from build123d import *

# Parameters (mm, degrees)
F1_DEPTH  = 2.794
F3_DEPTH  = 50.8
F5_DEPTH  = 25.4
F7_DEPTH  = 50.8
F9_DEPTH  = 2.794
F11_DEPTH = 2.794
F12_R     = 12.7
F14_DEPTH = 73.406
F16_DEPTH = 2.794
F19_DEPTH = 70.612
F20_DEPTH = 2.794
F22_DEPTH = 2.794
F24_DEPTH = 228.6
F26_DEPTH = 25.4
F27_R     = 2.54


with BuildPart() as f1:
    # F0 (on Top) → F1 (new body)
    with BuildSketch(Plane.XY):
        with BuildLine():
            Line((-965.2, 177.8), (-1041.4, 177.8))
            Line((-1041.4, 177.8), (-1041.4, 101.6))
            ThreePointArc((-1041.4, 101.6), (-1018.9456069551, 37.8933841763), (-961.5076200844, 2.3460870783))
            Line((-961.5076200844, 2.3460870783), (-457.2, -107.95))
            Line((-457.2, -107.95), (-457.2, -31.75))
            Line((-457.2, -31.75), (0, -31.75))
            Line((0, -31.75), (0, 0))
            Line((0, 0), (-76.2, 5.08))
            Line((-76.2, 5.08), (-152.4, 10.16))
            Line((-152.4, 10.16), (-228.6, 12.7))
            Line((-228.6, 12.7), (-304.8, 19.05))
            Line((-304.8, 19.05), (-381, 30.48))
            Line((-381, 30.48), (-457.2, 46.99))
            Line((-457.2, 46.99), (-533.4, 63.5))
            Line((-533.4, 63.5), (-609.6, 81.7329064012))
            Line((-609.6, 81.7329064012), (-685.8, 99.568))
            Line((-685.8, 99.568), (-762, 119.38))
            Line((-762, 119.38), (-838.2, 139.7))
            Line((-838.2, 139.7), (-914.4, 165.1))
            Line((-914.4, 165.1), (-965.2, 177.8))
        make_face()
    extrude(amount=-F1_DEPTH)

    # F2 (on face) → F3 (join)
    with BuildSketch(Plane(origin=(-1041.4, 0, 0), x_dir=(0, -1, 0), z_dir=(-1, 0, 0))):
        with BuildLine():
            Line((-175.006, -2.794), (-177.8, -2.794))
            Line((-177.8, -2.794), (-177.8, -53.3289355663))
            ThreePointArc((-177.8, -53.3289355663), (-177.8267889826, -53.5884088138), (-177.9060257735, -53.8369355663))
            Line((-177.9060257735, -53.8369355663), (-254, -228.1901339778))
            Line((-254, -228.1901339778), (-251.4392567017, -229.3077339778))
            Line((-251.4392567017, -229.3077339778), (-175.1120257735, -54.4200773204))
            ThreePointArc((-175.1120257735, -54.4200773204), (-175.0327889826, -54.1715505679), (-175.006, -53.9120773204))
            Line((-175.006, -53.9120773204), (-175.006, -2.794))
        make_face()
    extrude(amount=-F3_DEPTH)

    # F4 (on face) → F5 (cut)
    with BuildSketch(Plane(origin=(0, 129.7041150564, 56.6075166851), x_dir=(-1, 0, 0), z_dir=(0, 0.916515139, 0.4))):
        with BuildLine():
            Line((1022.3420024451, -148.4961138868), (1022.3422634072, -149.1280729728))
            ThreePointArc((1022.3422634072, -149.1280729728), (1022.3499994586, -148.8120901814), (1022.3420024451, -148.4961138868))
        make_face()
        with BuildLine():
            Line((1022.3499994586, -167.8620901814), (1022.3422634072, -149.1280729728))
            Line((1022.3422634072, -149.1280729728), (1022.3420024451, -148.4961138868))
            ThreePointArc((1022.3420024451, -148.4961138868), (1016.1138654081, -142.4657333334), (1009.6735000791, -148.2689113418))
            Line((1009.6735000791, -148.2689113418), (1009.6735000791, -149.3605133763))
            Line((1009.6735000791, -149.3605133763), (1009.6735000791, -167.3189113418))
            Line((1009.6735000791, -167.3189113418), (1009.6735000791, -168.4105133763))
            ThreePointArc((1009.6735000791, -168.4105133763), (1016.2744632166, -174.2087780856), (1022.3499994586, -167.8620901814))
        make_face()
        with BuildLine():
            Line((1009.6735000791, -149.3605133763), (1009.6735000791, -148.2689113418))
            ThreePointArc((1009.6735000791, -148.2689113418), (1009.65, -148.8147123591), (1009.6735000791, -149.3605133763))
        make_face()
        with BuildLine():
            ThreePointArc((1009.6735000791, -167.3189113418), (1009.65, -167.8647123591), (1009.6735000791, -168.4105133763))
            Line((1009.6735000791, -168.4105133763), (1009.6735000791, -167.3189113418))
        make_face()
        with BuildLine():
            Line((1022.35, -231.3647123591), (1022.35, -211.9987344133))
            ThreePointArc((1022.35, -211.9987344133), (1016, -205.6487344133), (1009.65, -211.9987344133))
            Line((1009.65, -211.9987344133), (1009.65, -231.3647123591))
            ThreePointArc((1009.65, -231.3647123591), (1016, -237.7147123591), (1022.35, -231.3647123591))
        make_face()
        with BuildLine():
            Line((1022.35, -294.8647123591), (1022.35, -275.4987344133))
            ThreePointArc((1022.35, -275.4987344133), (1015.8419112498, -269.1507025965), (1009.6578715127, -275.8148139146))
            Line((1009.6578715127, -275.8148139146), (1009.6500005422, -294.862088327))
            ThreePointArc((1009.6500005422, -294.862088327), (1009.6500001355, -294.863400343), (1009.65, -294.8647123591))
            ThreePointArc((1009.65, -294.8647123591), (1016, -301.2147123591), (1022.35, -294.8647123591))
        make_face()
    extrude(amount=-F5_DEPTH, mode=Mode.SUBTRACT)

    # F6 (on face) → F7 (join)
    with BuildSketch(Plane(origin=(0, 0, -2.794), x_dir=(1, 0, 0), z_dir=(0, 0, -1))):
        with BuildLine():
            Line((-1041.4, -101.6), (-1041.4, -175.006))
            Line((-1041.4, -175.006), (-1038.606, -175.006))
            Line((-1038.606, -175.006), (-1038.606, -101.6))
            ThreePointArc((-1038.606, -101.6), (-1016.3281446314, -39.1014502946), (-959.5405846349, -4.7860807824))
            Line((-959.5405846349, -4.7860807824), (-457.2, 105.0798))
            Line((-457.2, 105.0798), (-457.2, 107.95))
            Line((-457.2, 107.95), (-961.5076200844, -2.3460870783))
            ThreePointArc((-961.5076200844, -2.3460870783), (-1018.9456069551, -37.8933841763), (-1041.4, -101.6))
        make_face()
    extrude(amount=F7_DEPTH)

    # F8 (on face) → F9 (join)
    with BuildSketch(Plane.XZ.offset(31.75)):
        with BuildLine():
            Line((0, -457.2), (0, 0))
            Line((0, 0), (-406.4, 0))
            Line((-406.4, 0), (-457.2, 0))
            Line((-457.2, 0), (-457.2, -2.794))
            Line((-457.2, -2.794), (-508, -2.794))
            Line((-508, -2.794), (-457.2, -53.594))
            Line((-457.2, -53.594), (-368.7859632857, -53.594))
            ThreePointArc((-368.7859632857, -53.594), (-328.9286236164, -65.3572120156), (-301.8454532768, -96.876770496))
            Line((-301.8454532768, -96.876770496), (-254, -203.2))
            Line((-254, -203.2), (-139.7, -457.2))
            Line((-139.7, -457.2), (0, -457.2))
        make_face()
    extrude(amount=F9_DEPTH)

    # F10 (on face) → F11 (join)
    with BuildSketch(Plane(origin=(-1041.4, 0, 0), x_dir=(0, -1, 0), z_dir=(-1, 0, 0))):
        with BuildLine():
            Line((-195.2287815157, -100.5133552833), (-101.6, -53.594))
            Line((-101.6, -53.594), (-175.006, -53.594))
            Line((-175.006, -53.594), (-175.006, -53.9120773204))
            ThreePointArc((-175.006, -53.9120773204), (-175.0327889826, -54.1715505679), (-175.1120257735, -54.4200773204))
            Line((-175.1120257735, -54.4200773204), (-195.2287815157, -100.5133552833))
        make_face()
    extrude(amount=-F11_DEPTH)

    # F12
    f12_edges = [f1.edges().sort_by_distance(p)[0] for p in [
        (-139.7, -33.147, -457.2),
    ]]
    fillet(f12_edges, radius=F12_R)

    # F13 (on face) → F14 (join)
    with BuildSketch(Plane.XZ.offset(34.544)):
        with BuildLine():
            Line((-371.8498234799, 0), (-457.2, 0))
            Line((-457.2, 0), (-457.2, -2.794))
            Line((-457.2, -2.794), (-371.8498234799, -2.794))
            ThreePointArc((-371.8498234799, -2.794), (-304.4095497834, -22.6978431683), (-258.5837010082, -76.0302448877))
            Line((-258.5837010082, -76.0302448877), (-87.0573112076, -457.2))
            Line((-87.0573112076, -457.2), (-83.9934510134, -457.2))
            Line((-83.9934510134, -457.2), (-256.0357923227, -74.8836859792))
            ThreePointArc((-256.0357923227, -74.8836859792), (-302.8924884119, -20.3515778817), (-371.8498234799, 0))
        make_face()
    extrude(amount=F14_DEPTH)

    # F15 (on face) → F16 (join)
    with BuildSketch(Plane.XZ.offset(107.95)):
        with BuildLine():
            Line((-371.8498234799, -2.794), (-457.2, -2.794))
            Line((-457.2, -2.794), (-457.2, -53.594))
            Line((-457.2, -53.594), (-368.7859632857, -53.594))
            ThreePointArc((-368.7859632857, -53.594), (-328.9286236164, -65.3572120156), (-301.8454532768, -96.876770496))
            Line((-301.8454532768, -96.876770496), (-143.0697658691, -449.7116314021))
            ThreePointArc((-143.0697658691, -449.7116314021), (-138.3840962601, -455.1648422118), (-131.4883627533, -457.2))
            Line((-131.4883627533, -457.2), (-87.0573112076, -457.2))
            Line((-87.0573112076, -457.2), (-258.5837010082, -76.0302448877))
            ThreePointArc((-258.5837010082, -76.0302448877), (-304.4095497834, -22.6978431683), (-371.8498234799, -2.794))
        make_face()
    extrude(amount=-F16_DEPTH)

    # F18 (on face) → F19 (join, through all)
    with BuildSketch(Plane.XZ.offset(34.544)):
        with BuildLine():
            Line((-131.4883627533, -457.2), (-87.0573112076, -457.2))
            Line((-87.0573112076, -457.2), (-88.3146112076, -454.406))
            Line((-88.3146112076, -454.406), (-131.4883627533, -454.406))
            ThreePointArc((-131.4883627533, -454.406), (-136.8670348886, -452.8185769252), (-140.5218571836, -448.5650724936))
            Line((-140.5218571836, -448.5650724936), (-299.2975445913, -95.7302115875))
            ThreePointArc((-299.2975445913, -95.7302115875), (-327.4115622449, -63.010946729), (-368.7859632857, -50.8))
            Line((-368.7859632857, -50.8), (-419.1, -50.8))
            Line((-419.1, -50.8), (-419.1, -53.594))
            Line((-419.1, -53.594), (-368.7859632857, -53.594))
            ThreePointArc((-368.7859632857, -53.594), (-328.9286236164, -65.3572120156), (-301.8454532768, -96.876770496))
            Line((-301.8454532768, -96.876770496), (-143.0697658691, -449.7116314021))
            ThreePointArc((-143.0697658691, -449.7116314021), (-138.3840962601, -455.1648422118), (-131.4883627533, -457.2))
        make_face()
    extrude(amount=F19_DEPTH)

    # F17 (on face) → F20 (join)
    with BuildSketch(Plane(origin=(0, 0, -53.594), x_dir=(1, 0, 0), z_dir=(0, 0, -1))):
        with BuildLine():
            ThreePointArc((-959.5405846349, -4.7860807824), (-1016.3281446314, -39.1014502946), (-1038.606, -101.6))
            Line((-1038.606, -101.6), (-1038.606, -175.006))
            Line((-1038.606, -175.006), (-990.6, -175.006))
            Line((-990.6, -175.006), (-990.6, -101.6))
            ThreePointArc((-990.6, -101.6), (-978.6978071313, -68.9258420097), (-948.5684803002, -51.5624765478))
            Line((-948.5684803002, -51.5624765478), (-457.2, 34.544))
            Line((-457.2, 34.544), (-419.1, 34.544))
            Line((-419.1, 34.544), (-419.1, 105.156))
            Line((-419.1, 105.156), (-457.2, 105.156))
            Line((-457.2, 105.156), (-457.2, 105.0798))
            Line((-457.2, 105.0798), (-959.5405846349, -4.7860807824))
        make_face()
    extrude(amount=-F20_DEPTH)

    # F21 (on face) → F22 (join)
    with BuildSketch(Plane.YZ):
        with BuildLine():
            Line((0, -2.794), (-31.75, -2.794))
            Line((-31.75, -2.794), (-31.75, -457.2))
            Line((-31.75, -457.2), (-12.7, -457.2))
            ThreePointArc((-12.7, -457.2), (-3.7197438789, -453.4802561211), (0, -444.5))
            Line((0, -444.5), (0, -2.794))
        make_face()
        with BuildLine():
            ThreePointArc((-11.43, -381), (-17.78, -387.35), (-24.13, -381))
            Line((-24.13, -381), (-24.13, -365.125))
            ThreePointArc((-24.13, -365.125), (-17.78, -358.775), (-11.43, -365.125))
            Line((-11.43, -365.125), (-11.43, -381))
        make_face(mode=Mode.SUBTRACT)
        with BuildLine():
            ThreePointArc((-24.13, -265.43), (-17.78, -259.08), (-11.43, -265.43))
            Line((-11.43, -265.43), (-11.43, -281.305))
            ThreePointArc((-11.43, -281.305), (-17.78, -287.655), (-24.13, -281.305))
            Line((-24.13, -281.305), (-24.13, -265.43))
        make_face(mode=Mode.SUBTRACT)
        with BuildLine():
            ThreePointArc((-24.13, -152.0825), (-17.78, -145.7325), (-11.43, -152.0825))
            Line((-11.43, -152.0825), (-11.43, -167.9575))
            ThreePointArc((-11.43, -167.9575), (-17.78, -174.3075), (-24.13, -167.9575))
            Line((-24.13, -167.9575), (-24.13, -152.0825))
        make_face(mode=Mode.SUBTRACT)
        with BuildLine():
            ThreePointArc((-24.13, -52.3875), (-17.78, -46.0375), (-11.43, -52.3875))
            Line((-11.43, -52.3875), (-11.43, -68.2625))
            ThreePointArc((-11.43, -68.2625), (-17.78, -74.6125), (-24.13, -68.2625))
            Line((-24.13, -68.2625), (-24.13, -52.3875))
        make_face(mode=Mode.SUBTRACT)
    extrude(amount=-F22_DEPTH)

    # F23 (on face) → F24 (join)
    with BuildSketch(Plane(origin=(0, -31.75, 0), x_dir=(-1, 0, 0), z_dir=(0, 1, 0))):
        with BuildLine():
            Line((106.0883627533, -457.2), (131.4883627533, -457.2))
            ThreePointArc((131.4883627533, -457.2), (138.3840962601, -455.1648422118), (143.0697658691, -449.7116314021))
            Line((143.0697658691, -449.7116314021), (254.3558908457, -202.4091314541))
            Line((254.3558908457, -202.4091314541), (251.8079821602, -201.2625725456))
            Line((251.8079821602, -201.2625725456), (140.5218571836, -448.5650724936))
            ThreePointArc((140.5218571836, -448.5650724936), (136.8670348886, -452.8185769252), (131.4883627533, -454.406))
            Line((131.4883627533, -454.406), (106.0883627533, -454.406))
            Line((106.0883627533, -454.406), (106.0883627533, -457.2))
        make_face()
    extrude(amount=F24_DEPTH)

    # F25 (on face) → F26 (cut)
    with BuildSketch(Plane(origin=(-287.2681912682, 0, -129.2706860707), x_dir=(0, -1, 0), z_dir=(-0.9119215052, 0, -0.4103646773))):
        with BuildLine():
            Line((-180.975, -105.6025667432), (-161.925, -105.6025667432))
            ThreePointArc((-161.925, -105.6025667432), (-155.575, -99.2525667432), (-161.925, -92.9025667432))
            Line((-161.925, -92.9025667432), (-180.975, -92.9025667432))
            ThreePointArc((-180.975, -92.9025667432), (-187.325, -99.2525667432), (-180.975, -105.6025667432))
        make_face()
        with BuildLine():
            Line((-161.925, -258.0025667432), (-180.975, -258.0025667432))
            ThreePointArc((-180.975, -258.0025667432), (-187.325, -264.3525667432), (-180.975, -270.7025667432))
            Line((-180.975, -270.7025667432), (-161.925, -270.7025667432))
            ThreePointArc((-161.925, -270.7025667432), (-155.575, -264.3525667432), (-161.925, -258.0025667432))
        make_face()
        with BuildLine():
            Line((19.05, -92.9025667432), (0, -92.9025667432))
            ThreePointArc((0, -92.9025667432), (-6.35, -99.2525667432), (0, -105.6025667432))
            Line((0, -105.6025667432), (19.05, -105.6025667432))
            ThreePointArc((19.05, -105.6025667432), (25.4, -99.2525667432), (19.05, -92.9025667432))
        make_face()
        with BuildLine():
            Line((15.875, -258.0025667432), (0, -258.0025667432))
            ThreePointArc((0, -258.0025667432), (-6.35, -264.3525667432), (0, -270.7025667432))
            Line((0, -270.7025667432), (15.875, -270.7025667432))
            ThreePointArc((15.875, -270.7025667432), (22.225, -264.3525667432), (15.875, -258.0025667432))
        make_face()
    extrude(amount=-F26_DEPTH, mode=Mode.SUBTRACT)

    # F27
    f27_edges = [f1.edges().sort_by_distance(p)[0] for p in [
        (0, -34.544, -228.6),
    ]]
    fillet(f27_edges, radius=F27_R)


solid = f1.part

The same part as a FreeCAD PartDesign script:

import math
import FreeCAD as App
import Part
import Sketcher

V = App.Vector
Q = App.Units.Quantity


def edges_at(feature, points):
    """Names of the edges that pass closest to the given points."""
    edges = feature.Shape.Edges
    near = lambda p: min(range(len(edges)), key=lambda i: edges[i].distToShape(Part.Vertex(*p))[0])
    return sorted({f"Edge{near(p) + 1}" for p in points})

doc = App.newDocument("Part")
body = doc.addObject("PartDesign::Body", "Body")

# Sketch on XY plane
sketch1 = doc.addObject("Sketcher::SketchObject", "Sketch")
body.addObject(sketch1)
sketch1.AttachmentSupport = (doc.XY_Plane, [""])
sketch1.MapMode = "FlatFace"
sketch1.addGeometry([
    Part.LineSegment(V(-965.2, 177.8, 0), V(-1041.4, 177.8, 0)),  # 0
    Part.LineSegment(V(-1041.4, 177.8, 0), V(-1041.4, 101.6, 0)),  # 1
    Part.ArcOfCircle(Part.Circle(V(-939.8, 101.6, 0), V(0, 0, 1), 101.6), math.radians(180), math.radians(257.663212)),  # 2
    Part.LineSegment(V(-961.50762, 2.346087, 0), V(-457.2, -107.95, 0)),  # 3
    Part.LineSegment(V(-457.2, -107.95, 0), V(-457.2, -31.75, 0)),  # 4
    Part.LineSegment(V(-457.2, -31.75, 0), V(0, -31.75, 0)),  # 5
    Part.LineSegment(V(0, -31.75, 0), V(0, 0, 0)),  # 6
    Part.LineSegment(V(0, 0, 0), V(-152.4, 10.16, 0)),  # 7
    Part.LineSegment(V(-152.4, 10.16, 0), V(-228.6, 12.7, 0)),  # 8
    Part.LineSegment(V(-228.6, 12.7, 0), V(-304.8, 19.05, 0)),  # 9
    Part.LineSegment(V(-304.8, 19.05, 0), V(-381, 30.48, 0)),  # 10
    Part.LineSegment(V(-381, 30.48, 0), V(-533.4, 63.5, 0)),  # 11
    Part.LineSegment(V(-533.4, 63.5, 0), V(-609.6, 81.732906, 0)),  # 12
    Part.LineSegment(V(-609.6, 81.732906, 0), V(-685.8, 99.568, 0)),  # 13
    Part.LineSegment(V(-685.8, 99.568, 0), V(-762, 119.38, 0)),  # 14
    Part.LineSegment(V(-762, 119.38, 0), V(-838.2, 139.7, 0)),  # 15
    Part.LineSegment(V(-838.2, 139.7, 0), V(-914.4, 165.1, 0)),  # 16
    Part.LineSegment(V(-914.4, 165.1, 0), V(-965.2, 177.8, 0)),  # 17
], False)
sketch1.addConstraint([
    Sketcher.Constraint("Coincident", 0, 2, 1, 1),
    Sketcher.Constraint("Tangent", 1, 2, 2, 1),
    Sketcher.Constraint("Tangent", 2, 2, 3, 1),
    Sketcher.Constraint("Coincident", 3, 2, 4, 1),
    Sketcher.Constraint("Coincident", 4, 2, 5, 1),
    Sketcher.Constraint("Coincident", 5, 2, 6, 1),
    Sketcher.Constraint("Coincident", 6, 2, 7, 1),
    Sketcher.Constraint("Coincident", 7, 2, 8, 1),
    Sketcher.Constraint("Coincident", 8, 2, 9, 1),
    Sketcher.Constraint("Coincident", 9, 2, 10, 1),
    Sketcher.Constraint("Coincident", 10, 2, 11, 1),
    Sketcher.Constraint("Coincident", 11, 2, 12, 1),
    Sketcher.Constraint("Coincident", 12, 2, 13, 1),
    Sketcher.Constraint("Coincident", 13, 2, 14, 1),
    Sketcher.Constraint("Coincident", 14, 2, 15, 1),
    Sketcher.Constraint("Coincident", 15, 2, 16, 1),
    Sketcher.Constraint("Coincident", 16, 2, 17, 1),
    Sketcher.Constraint("Coincident", 17, 2, 0, 1),
    Sketcher.Constraint("Horizontal", 0),
    Sketcher.Constraint("Vertical", 1),
    Sketcher.Constraint("Vertical", 4),
    Sketcher.Constraint("Horizontal", 5),
    Sketcher.Constraint("Vertical", 6),
    Sketcher.Constraint("Coincident", 6, 2, -1, 1),
    Sketcher.Constraint("Equal", 0, 1),
    Sketcher.Constraint("Equal", 1, 4),
    Sketcher.Constraint("Radius", 2, Q("4 in")),
    Sketcher.Constraint("DistanceX", 0, 2, 0, 1, Q("3 in")),
    Sketcher.Constraint("DistanceX", 5, 1, 5, 2, Q("18 in")),
    Sketcher.Constraint("DistanceX", 2, 3, -1, 1, Q("37 in")),
    Sketcher.Constraint("DistanceY", -1, 1, 2, 3, Q("4 in")),
    Sketcher.Constraint("DistanceX", 7, 2, -1, 1, Q("6 in")),
    Sketcher.Constraint("DistanceX", 8, 2, -1, 1, Q("9 in")),
    Sketcher.Constraint("DistanceX", 9, 2, -1, 1, Q("12 in")),
    Sketcher.Constraint("DistanceX", 10, 2, -1, 1, Q("15 in")),
    Sketcher.Constraint("DistanceX", 11, 2, -1, 1, Q("21 in")),
    Sketcher.Constraint("DistanceX", 12, 2, -1, 1, Q("24 in")),
    Sketcher.Constraint("DistanceX", 13, 2, -1, 1, Q("27 in")),
    Sketcher.Constraint("DistanceX", 14, 2, -1, 1, Q("30 in")),
    Sketcher.Constraint("DistanceX", 15, 2, -1, 1, Q("33 in")),
    Sketcher.Constraint("DistanceX", 16, 2, -1, 1, Q("36 in")),
    Sketcher.Constraint("DistanceY", 4, 2, 9, 2, Q("2 in")),
    Sketcher.Constraint("DistanceY", 8, 2, 11, 2, Q("2 in")),
    Sketcher.Constraint("DistanceY", 15, 2, 16, 2, Q("1 in")),
    Sketcher.Constraint("DistanceY", 6, 1, 6, 2, Q("1.25 in")),
    Sketcher.Constraint("DistanceY", -1, 1, 7, 2, Q("0.4 in")),
    Sketcher.Constraint("DistanceY", -1, 1, 8, 2, Q("0.5 in")),
    Sketcher.Constraint("DistanceY", -1, 1, 10, 2, Q("1.2 in")),
    Sketcher.Constraint("DistanceY", -1, 1, 14, 2, Q("4.7 in")),
    Sketcher.Constraint("DistanceY", -1, 1, 15, 2, Q("5.5 in")),
    Sketcher.Constraint("DistanceY", -1, 1, 13, 2, Q("3.92 in")),
    Sketcher.Constraint("Distance", 13, Q("78.25938 mm")),
])
pad1 = doc.addObject("PartDesign::Pad", "Pad")
body.addObject(pad1)
pad1.Profile = sketch1
pad1.Length = Q("0.11 in")
pad1.Reversed = True

# Sketch on YZ plane
sketch2 = doc.addObject("Sketcher::SketchObject", "Sketch001")
body.addObject(sketch2)
sketch2.AttachmentSupport = (doc.YZ_Plane, [""])
sketch2.MapMode = "FlatFace"
sketch2.AttachmentOffset = App.Placement(V(0, 0, -41 * 25.4), App.Rotation())
sketch2.addGeometry([
    Part.LineSegment(V(175.006, -2.794, 0), V(177.8, -2.794, 0)),  # 0
    Part.LineSegment(V(177.8, -2.794, 0), V(177.8, -53.328936, 0)),  # 1
    Part.ArcOfCircle(Part.Circle(V(179.07, -53.328936, 0), V(0, 0, 1), 1.27), math.radians(180), math.radians(203.578178)),  # 2
    Part.LineSegment(V(177.906026, -53.836936, 0), V(254, -228.190134, 0)),  # 3
    Part.LineSegment(V(254, -228.190134, 0), V(251.439257, -229.307734, 0)),  # 4
    Part.LineSegment(V(251.439257, -229.307734, 0), V(175.112026, -54.420077, 0)),  # 5
    Part.ArcOfCircle(Part.Circle(V(176.276, -53.912077, 0), V(0, 0, 1), 1.27), math.radians(180), math.radians(203.578178)),  # 6
    Part.LineSegment(V(175.006, -53.912077, 0), V(175.006, -2.794, 0)),  # 7
], False)
sketch2.addConstraint([
    Sketcher.Constraint("Coincident", 0, 2, 1, 1),
    Sketcher.Constraint("Tangent", 1, 2, 2, 1),
    Sketcher.Constraint("Tangent", 2, 2, 3, 1),
    Sketcher.Constraint("Coincident", 3, 2, 4, 1),
    Sketcher.Constraint("Coincident", 4, 2, 5, 1),
    Sketcher.Constraint("Tangent", 5, 2, 6, 2),
    Sketcher.Constraint("Tangent", 6, 1, 7, 1),
    Sketcher.Constraint("Coincident", 7, 2, 0, 1),
    Sketcher.Constraint("Horizontal", 0),
    Sketcher.Constraint("Vertical", 1),
    Sketcher.Constraint("Vertical", 7),
    Sketcher.Constraint("Equal", 2, 6),
    Sketcher.Constraint("Perpendicular", 3, 4),
    Sketcher.Constraint("Perpendicular", 4, 5),
    Sketcher.Constraint("Radius", 2, Q("0.05 in")),
    Sketcher.Constraint("DistanceX", -1, 1, 0, 2, Q("7 in")),
    Sketcher.Constraint("DistanceX", -1, 1, 3, 2, Q("10 in")),
    Sketcher.Constraint("DistanceX", 0, 1, 0, 2, Q("0.11 in")),
    Sketcher.Constraint("Distance", 4, Q("0.11 in")),
    Sketcher.Constraint("DistanceY", 0, 2, -1, 1, Q("0.11 in")),
    Sketcher.Constraint("DistanceY", 4, 2, 3, 2, Q("0.044 in")),
    Sketcher.Constraint("DistanceY", 1, 2, 1, 1, Q("50.534936 mm")),
])
pad2 = doc.addObject("PartDesign::Pad", "Pad001")
body.addObject(pad2)
pad2.Profile = sketch2
pad2.Length = Q("2 in")

# Sketch on an angled plane
sketch3 = doc.addObject("Sketcher::SketchObject", "Sketch002")
body.addObject(sketch3)
sketch3.Placement = App.Placement(V(0, 129.704115, 56.607517), App.Rotation(V(-1, 0, 0), V(0, -0.4, 0.916515139), V(0, 0.916515139, 0.4), "ZXY"))
sketch3.addGeometry([
    Part.ArcOfCircle(Part.Circle(V(1016, -148.814712, 0), V(0, 0, 1), 6.35), math.radians(-2.828588), math.radians(2.875908)),  # 0
    Part.ArcOfCircle(Part.Circle(V(1016, -148.814712, 0), V(0, 0, 1), 6.35), math.radians(2.875908), math.radians(175.069177)),  # 1
    Part.ArcOfCircle(Part.Circle(V(1016, -148.814712, 0), V(0, 0, 1), 6.35), math.radians(175.069177), math.radians(184.930823)),  # 2
    Part.LineSegment(V(1009.6735, -149.360513, 0), V(1009.6735, -167.318911, 0)),  # 3
    Part.ArcOfCircle(Part.Circle(V(1016, -167.864712, 0), V(0, 0, 1), 6.35), math.radians(175.069177), math.radians(184.930823)),  # 4
    Part.ArcOfCircle(Part.Circle(V(1016, -167.864712, 0), V(0, 0, 1), 6.35), math.radians(-175.069177), math.radians(0.02366)),  # 5
    Part.LineSegment(V(1022.349999, -167.86209, 0), V(1022.342263, -149.128073, 0)),  # 6
    Part.LineSegment(V(1022.35, -231.364712, 0), V(1022.35, -211.998734, 0)),  # 7
    Part.ArcOfCircle(Part.Circle(V(1016, -211.998734, 0), V(0, 0, 1), 6.35), math.radians(0), math.radians(180)),  # 8
    Part.LineSegment(V(1009.65, -211.998734, 0), V(1009.65, -231.364712, 0)),  # 9
    Part.ArcOfCircle(Part.Circle(V(1016, -231.364712, 0), V(0, 0, 1), 6.35), math.radians(180), math.radians(360)),  # 10
    Part.LineSegment(V(1022.35, -294.864712, 0), V(1022.35, -275.498734, 0)),  # 11
    Part.ArcOfCircle(Part.Circle(V(1016, -275.498734, 0), V(0, 0, 1), 6.35), math.radians(0), math.radians(182.853151)),  # 12
    Part.LineSegment(V(1009.657872, -275.814814, 0), V(1009.650001, -294.862088, 0)),  # 13
    Part.ArcOfCircle(Part.Circle(V(1015.997295, -294.864712, 0), V(0, 0, 1), 6.347295), math.radians(179.976318), math.radians(180.000004)),  # 14
    Part.ArcOfCircle(Part.Circle(V(1016, -294.864712, 0), V(0, 0, 1), 6.35), math.radians(180), math.radians(360)),  # 15
], False)
sketch3.addConstraint([
    Sketcher.Constraint("Tangent", 0, 2, 1, 1),
    Sketcher.Constraint("Tangent", 1, 2, 2, 1),
    Sketcher.Constraint("Coincident", 2, 2, 3, 1),
    Sketcher.Constraint("Coincident", 3, 2, 4, 1),
    Sketcher.Constraint("Tangent", 4, 2, 5, 1),
    Sketcher.Constraint("Tangent", 5, 2, 6, 1),
    Sketcher.Constraint("Coincident", 6, 2, 0, 1),
    Sketcher.Constraint("Tangent", 7, 2, 8, 1),
    Sketcher.Constraint("Tangent", 8, 2, 9, 1),
    Sketcher.Constraint("Tangent", 9, 2, 10, 1),
    Sketcher.Constraint("Tangent", 10, 2, 7, 1),
    Sketcher.Constraint("Tangent", 11, 2, 12, 1),
    Sketcher.Constraint("Coincident", 12, 2, 13, 1),
    Sketcher.Constraint("Tangent", 13, 2, 14, 1),
    Sketcher.Constraint("Tangent", 14, 2, 15, 1),
    Sketcher.Constraint("Tangent", 15, 2, 11, 1),
    Sketcher.Constraint("Vertical", 3),
    Sketcher.Constraint("Vertical", 7),
    Sketcher.Constraint("Vertical", 9),
    Sketcher.Constraint("Vertical", 11),
    Sketcher.Constraint("Coincident", 2, 3, 0, 3),
    Sketcher.Constraint("Equal", 2, 4),
    Sketcher.Constraint("Equal", 4, 5),
    Sketcher.Constraint("Equal", 5, 8),
    Sketcher.Constraint("Equal", 10, 12),
    Sketcher.Constraint("Equal", 12, 15),
    Sketcher.Constraint("Horizontal", 15, 3, 14, 2),
    Sketcher.Constraint("Vertical", 2, 3, 4, 3),
    Sketcher.Constraint("Vertical", 5, 3, 8, 3),
    Sketcher.Constraint("Vertical", 10, 3, 12, 3),
    Sketcher.Constraint("Vertical", 1, 2, 2, 2),
    Sketcher.Constraint("Vertical", 3, 2, 4, 2),
    Sketcher.Constraint("Equal", 9, 11),
    Sketcher.Constraint("Radius", 0, Q("0.25 in")),
    Sketcher.Constraint("DistanceX", -1, 1, 0, 3, Q("40 in")),
    Sketcher.Constraint("DistanceY", 14, 3, 4, 3, Q("5 in")),
    Sketcher.Constraint("DistanceY", 10, 3, 4, 3, Q("2.5 in")),
    Sketcher.Constraint("DistanceY", 4, 3, 0, 3, Q("0.75 in")),
    Sketcher.Constraint("Radius", 14, Q("6.347295 mm")),
    Sketcher.Constraint("DistanceX", -1, 1, 1, 2, Q("1009.6735 mm")),
    Sketcher.Constraint("DistanceY", 1, 3, 0, 2, Q("0.318598 mm")),
    Sketcher.Constraint("DistanceY", 15, 3, 12, 2, Q("19.049898 mm")),
    Sketcher.Constraint("Distance", 6, Q("18.734019 mm")),
    Sketcher.Constraint("DistanceY", 7, 1, 7, 2, Q("19.365978 mm")),
    Sketcher.Constraint("DistanceY", 14, 3, -1, 1, Q("294.864712 mm")),
])
pocket1 = doc.addObject("PartDesign::Pocket", "Pocket")
body.addObject(pocket1)
pocket1.Profile = sketch3
pocket1.Length = Q("1 in")

# Sketch on XY plane
sketch4 = doc.addObject("Sketcher::SketchObject", "Sketch003")
body.addObject(sketch4)
sketch4.AttachmentSupport = (doc.XY_Plane, [""])
sketch4.MapMode = "FlatFace"
sketch4.AttachmentOffset = App.Placement(V(0, 0, -0.11 * 25.4), App.Rotation())
sketch4.addGeometry([
    Part.LineSegment(V(-1041.4, 101.6, 0), V(-1041.4, 175.006, 0)),  # 0
    Part.LineSegment(V(-1041.4, 175.006, 0), V(-1038.606, 175.006, 0)),  # 1
    Part.LineSegment(V(-1038.606, 175.006, 0), V(-1038.606, 101.6, 0)),  # 2
    Part.ArcOfCircle(Part.Circle(V(-939.8, 101.6, 0), V(0, 0, 1), 98.806), math.radians(180), math.radians(258.475242)),  # 3
    Part.LineSegment(V(-959.540585, 4.786081, 0), V(-457.2, -105.0798, 0)),  # 4
    Part.LineSegment(V(-457.2, -105.0798, 0), V(-457.2, -107.95, 0)),  # 5
    Part.LineSegment(V(-457.2, -107.95, 0), V(-961.50762, 2.346087, 0)),  # 6
    Part.ArcOfCircle(Part.Circle(V(-939.8, 101.6, 0), V(0, 0, 1), 101.6), math.radians(180), math.radians(257.663212)),  # 7
], False)
sketch4.addConstraint([
    Sketcher.Constraint("Coincident", 0, 2, 1, 1),
    Sketcher.Constraint("Coincident", 1, 2, 2, 1),
    Sketcher.Constraint("Tangent", 2, 2, 3, 1),
    Sketcher.Constraint("Coincident", 3, 2, 4, 1),
    Sketcher.Constraint("Coincident", 4, 2, 5, 1),
    Sketcher.Constraint("Coincident", 5, 2, 6, 1),
    Sketcher.Constraint("Tangent", 6, 2, 7, 2),
    Sketcher.Constraint("Tangent", 7, 1, 0, 1),
    Sketcher.Constraint("Vertical", 0),
    Sketcher.Constraint("Horizontal", 1),
    Sketcher.Constraint("Vertical", 2),
    Sketcher.Constraint("Vertical", 5),
    Sketcher.Constraint("Coincident", 7, 3, 3, 3),
    Sketcher.Constraint("Parallel", 4, 6),
    Sketcher.Constraint("Radius", 7, Q("4 in")),
    Sketcher.Constraint("Radius", 3, Q("3.89 in")),
    Sketcher.Constraint("DistanceX", 3, 3, -1, 1, Q("37 in")),
    Sketcher.Constraint("DistanceY", -1, 1, 3, 3, Q("4 in")),
    Sketcher.Constraint("DistanceX", 4, 2, -1, 1, Q("18 in")),
    Sketcher.Constraint("DistanceY", 0, 1, 0, 2, Q("2.89 in")),
    Sketcher.Constraint("DistanceY", 5, 2, 5, 1, Q("0.113 in")),
    Sketcher.Constraint("DistanceY", 5, 2, -1, 1, Q("4.25 in")),
])
pad3 = doc.addObject("PartDesign::Pad", "Pad002")
body.addObject(pad3)
pad3.Profile = sketch4
pad3.Length = Q("2 in")
pad3.Reversed = True

# Sketch on XZ plane
sketch5 = doc.addObject("Sketcher::SketchObject", "Sketch004")
body.addObject(sketch5)
sketch5.AttachmentSupport = (doc.XZ_Plane, [""])
sketch5.MapMode = "FlatFace"
sketch5.AttachmentOffset = App.Placement(V(0, 0, 1.25 * 25.4), App.Rotation())
sketch5.addGeometry([
    Part.LineSegment(V(0, -457.2, 0), V(0, 0, 0)),  # 0
    Part.LineSegment(V(0, 0, 0), V(-457.2, 0, 0)),  # 1
    Part.LineSegment(V(-457.2, 0, 0), V(-457.2, -2.794, 0)),  # 2
    Part.LineSegment(V(-457.2, -2.794, 0), V(-508, -2.794, 0)),  # 3
    Part.LineSegment(V(-508, -2.794, 0), V(-457.2, -53.594, 0)),  # 4
    Part.LineSegment(V(-457.2, -53.594, 0), V(-368.785963, -53.594, 0)),  # 5
    Part.ArcOfCircle(Part.Circle(V(-368.785963, -127, 0), V(0, 0, 1), 73.406), math.radians(24.227745), math.radians(90)),  # 6
    Part.LineSegment(V(-301.845453, -96.87677, 0), V(-139.7, -457.2, 0)),  # 7
    Part.LineSegment(V(-139.7, -457.2, 0), V(0, -457.2, 0)),  # 8
], False)
sketch5.addConstraint([
    Sketcher.Constraint("Coincident", 0, 2, 1, 1),
    Sketcher.Constraint("Coincident", 1, 2, 2, 1),
    Sketcher.Constraint("Coincident", 2, 2, 3, 1),
    Sketcher.Constraint("Coincident", 3, 2, 4, 1),
    Sketcher.Constraint("Coincident", 4, 2, 5, 1),
    Sketcher.Constraint("Tangent", 5, 2, 6, 2),
    Sketcher.Constraint("Tangent", 6, 1, 7, 1),
    Sketcher.Constraint("Coincident", 7, 2, 8, 1),
    Sketcher.Constraint("Coincident", 8, 2, 0, 1),
    Sketcher.Constraint("Vertical", 0),
    Sketcher.Constraint("Horizontal", 1),
    Sketcher.Constraint("Vertical", 2),
    Sketcher.Constraint("Horizontal", 3),
    Sketcher.Constraint("Horizontal", 5),
    Sketcher.Constraint("Horizontal", 8),
    Sketcher.Constraint("Coincident", 0, 2, -1, 1),
    Sketcher.Constraint("Vertical", 2, 2, 4, 2),
    Sketcher.Constraint("Equal", 1, 0),
    Sketcher.Constraint("DistanceX", 1, 2, 1, 1, Q("18 in")),
    Sketcher.Constraint("DistanceX", 3, 2, 3, 1, Q("2 in")),
    Sketcher.Constraint("Radius", 6, Q("2.89 in")),
    Sketcher.Constraint("DistanceX", 8, 1, 8, 2, Q("5.5 in")),
    Sketcher.Constraint("DistanceY", 6, 3, -1, 1, Q("5 in")),
    Sketcher.Constraint("Angle", 4, Q("-45 deg")),
    Sketcher.Constraint("Distance", 7, Q("395.125268 mm")),
])
pad4 = doc.addObject("PartDesign::Pad", "Pad003")
body.addObject(pad4)
pad4.Profile = sketch5
pad4.Length = Q("0.11 in")

# Sketch on YZ plane
sketch6 = doc.addObject("Sketcher::SketchObject", "Sketch005")
body.addObject(sketch6)
sketch6.AttachmentSupport = (doc.YZ_Plane, [""])
sketch6.MapMode = "FlatFace"
sketch6.AttachmentOffset = App.Placement(V(0, 0, -41 * 25.4), App.Rotation())
sketch6.addGeometry([
    Part.LineSegment(V(195.228782, -100.513355, 0), V(101.6, -53.594, 0)),  # 0
    Part.LineSegment(V(101.6, -53.594, 0), V(175.006, -53.594, 0)),  # 1
    Part.LineSegment(V(175.006, -53.594, 0), V(175.006, -53.912077, 0)),  # 2
    Part.ArcOfCircle(Part.Circle(V(176.276, -53.912077, 0), V(0, 0, 1), 1.27), math.radians(180), math.radians(203.578178)),  # 3
    Part.LineSegment(V(175.112026, -54.420077, 0), V(195.228782, -100.513355, 0)),  # 4
], False)
sketch6.addConstraint([
    Sketcher.Constraint("Coincident", 0, 2, 1, 1),
    Sketcher.Constraint("Coincident", 1, 2, 2, 1),
    Sketcher.Constraint("Tangent", 2, 2, 3, 1),
    Sketcher.Constraint("Tangent", 3, 2, 4, 1),
    Sketcher.Constraint("Coincident", 4, 2, 0, 1),
    Sketcher.Constraint("Horizontal", 1),
    Sketcher.Constraint("Vertical", 2),
    Sketcher.Constraint("Radius", 3, Q("0.05 in")),
    Sketcher.Constraint("DistanceX", -1, 1, 0, 2, Q("4 in")),
    Sketcher.Constraint("DistanceX", 1, 1, 1, 2, Q("2.89 in")),
    Sketcher.Constraint("DistanceY", 0, 2, -1, 1, Q("2.11 in")),
    Sketcher.Constraint("DistanceY", 3, 2, 2, 2, Q("0.02 in")),
    Sketcher.Constraint("Distance", 4, Q("50.291889 mm")),
    Sketcher.Constraint("DistanceY", 2, 2, 2, 1, Q("0.318077 mm")),
])
pad5 = doc.addObject("PartDesign::Pad", "Pad004")
body.addObject(pad5)
pad5.Profile = sketch6
pad5.Length = Q("0.11 in")
doc.recompute()

fillet = doc.addObject("PartDesign::Fillet", "Fillet")
body.addObject(fillet)
fillet.Base = (pad5, edges_at(pad5, [(-139.7, -33.147, -457.2)]))
fillet.Radius = Q("0.5 in")

# Sketch on XZ plane
sketch7 = doc.addObject("Sketcher::SketchObject", "Sketch006")
body.addObject(sketch7)
sketch7.AttachmentSupport = (doc.XZ_Plane, [""])
sketch7.MapMode = "FlatFace"
sketch7.AttachmentOffset = App.Placement(V(0, 0, 1.36 * 25.4), App.Rotation())
sketch7.addGeometry([
    Part.LineSegment(V(-371.849823, 0, 0), V(-457.2, 0, 0)),  # 0
    Part.LineSegment(V(-457.2, 0, 0), V(-457.2, -2.794, 0)),  # 1
    Part.LineSegment(V(-457.2, -2.794, 0), V(-371.849823, -2.794, 0)),  # 2
    Part.ArcOfCircle(Part.Circle(V(-371.849823, -127, 0), V(0, 0, 1), 124.206), math.radians(24.227745), math.radians(90)),  # 3
    Part.LineSegment(V(-258.583701, -76.030245, 0), V(-87.057311, -457.2, 0)),  # 4
    Part.LineSegment(V(-87.057311, -457.2, 0), V(-83.993451, -457.2, 0)),  # 5
    Part.LineSegment(V(-83.993451, -457.2, 0), V(-256.035792, -74.883686, 0)),  # 6
    Part.ArcOfCircle(Part.Circle(V(-371.849823, -127, 0), V(0, 0, 1), 127), math.radians(24.227745), math.radians(90)),  # 7
], False)
sketch7.addConstraint([
    Sketcher.Constraint("Coincident", 0, 2, 1, 1),
    Sketcher.Constraint("Coincident", 1, 2, 2, 1),
    Sketcher.Constraint("Tangent", 2, 2, 3, 2),
    Sketcher.Constraint("Tangent", 3, 1, 4, 1),
    Sketcher.Constraint("Coincident", 4, 2, 5, 1),
    Sketcher.Constraint("Coincident", 5, 2, 6, 1),
    Sketcher.Constraint("Tangent", 6, 2, 7, 1),
    Sketcher.Constraint("Tangent", 7, 2, 0, 1),
    Sketcher.Constraint("Horizontal", 0),
    Sketcher.Constraint("Vertical", 1),
    Sketcher.Constraint("Horizontal", 2),
    Sketcher.Constraint("Horizontal", 5),
    Sketcher.Constraint("Coincident", 7, 3, 3, 3),
    Sketcher.Constraint("PointOnObject", 0, 2, -1),
    Sketcher.Constraint("Parallel", 4, 6),
    Sketcher.Constraint("Radius", 7, Q("5 in")),
    Sketcher.Constraint("Radius", 3, Q("4.89 in")),
    Sketcher.Constraint("DistanceX", 0, 2, -1, 1, Q("18 in")),
    Sketcher.Constraint("DistanceY", 4, 2, -1, 1, Q("18 in")),
    Sketcher.Constraint("DistanceX", 3, 1, -1, 1, Q("258.583701 mm")),
    Sketcher.Constraint("Distance", 4, Q("417.985268 mm")),
])
pad6 = doc.addObject("PartDesign::Pad", "Pad005")
body.addObject(pad6)
pad6.Profile = sketch7
pad6.Length = Q("2.89 in")

# Sketch on XZ plane
sketch8 = doc.addObject("Sketcher::SketchObject", "Sketch007")
body.addObject(sketch8)
sketch8.AttachmentSupport = (doc.XZ_Plane, [""])
sketch8.MapMode = "FlatFace"
sketch8.AttachmentOffset = App.Placement(V(0, 0, 4.25 * 25.4), App.Rotation())
sketch8.addGeometry([
    Part.LineSegment(V(-371.849823, -2.794, 0), V(-457.2, -2.794, 0)),  # 0
    Part.LineSegment(V(-457.2, -2.794, 0), V(-457.2, -53.594, 0)),  # 1
    Part.LineSegment(V(-457.2, -53.594, 0), V(-368.785963, -53.594, 0)),  # 2
    Part.ArcOfCircle(Part.Circle(V(-368.785963, -127, 0), V(0, 0, 1), 73.406), math.radians(24.227745), math.radians(90)),  # 3
    Part.LineSegment(V(-301.845453, -96.87677, 0), V(-143.069766, -449.711631, 0)),  # 4
    Part.ArcOfCircle(Part.Circle(V(-131.488363, -444.5, 0), V(0, 0, 1), 12.7), math.radians(-155.772255), math.radians(-90)),  # 5
    Part.LineSegment(V(-131.488363, -457.2, 0), V(-87.057311, -457.2, 0)),  # 6
    Part.LineSegment(V(-87.057311, -457.2, 0), V(-258.583701, -76.030245, 0)),  # 7
    Part.ArcOfCircle(Part.Circle(V(-371.849823, -127, 0), V(0, 0, 1), 124.206), math.radians(24.227745), math.radians(90)),  # 8
], False)
sketch8.addConstraint([
    Sketcher.Constraint("Coincident", 0, 2, 1, 1),
    Sketcher.Constraint("Coincident", 1, 2, 2, 1),
    Sketcher.Constraint("Tangent", 2, 2, 3, 2),
    Sketcher.Constraint("Tangent", 3, 1, 4, 1),
    Sketcher.Constraint("Tangent", 4, 2, 5, 1),
    Sketcher.Constraint("Tangent", 5, 2, 6, 1),
    Sketcher.Constraint("Coincident", 6, 2, 7, 1),
    Sketcher.Constraint("Tangent", 7, 2, 8, 1),
    Sketcher.Constraint("Tangent", 8, 2, 0, 1),
    Sketcher.Constraint("Horizontal", 0),
    Sketcher.Constraint("Vertical", 1),
    Sketcher.Constraint("Horizontal", 2),
    Sketcher.Constraint("Horizontal", 6),
    Sketcher.Constraint("Parallel", 4, 7),
    Sketcher.Constraint("Horizontal", 3, 3, 8, 3),
    Sketcher.Constraint("Radius", 5, Q("0.5 in")),
    Sketcher.Constraint("DistanceY", 1, 2, 1, 1, Q("2 in")),
    Sketcher.Constraint("Radius", 3, Q("2.89 in")),
    Sketcher.Constraint("DistanceY", 3, 3, -1, 1, Q("5 in")),
    Sketcher.Constraint("DistanceX", 0, 2, -1, 1, Q("18 in")),
    Sketcher.Constraint("DistanceY", 5, 2, -1, 1, Q("18 in")),
    Sketcher.Constraint("DistanceX", 6, 1, 6, 2, Q("44.431052 mm")),
    Sketcher.Constraint("DistanceX", 7, 2, -1, 1, Q("258.583701 mm")),
    Sketcher.Constraint("DistanceX", 3, 3, 5, 3, Q("237.297601 mm")),
])
pad7 = doc.addObject("PartDesign::Pad", "Pad006")
body.addObject(pad7)
pad7.Profile = sketch8
pad7.Length = Q("0.11 in")
pad7.Reversed = True

# Sketch on XZ plane
sketch9 = doc.addObject("Sketcher::SketchObject", "Sketch008")
body.addObject(sketch9)
sketch9.AttachmentSupport = (doc.XZ_Plane, [""])
sketch9.MapMode = "FlatFace"
sketch9.AttachmentOffset = App.Placement(V(0, 0, 1.36 * 25.4), App.Rotation())
sketch9.addGeometry([
    Part.LineSegment(V(-131.488363, -457.2, 0), V(-87.057311, -457.2, 0)),  # 0
    Part.LineSegment(V(-87.057311, -457.2, 0), V(-88.314611, -454.406, 0)),  # 1
    Part.LineSegment(V(-88.314611, -454.406, 0), V(-131.488363, -454.406, 0)),  # 2
    Part.ArcOfCircle(Part.Circle(V(-131.488363, -444.5, 0), V(0, 0, 1), 9.906), math.radians(-155.772255), math.radians(-90)),  # 3
    Part.LineSegment(V(-140.521857, -448.565072, 0), V(-299.297545, -95.730212, 0)),  # 4
    Part.ArcOfCircle(Part.Circle(V(-368.785963, -127, 0), V(0, 0, 1), 76.2), math.radians(24.227745), math.radians(90)),  # 5
    Part.LineSegment(V(-368.785963, -50.8, 0), V(-419.1, -50.8, 0)),  # 6
    Part.LineSegment(V(-419.1, -50.8, 0), V(-419.1, -53.594, 0)),  # 7
    Part.LineSegment(V(-419.1, -53.594, 0), V(-368.785963, -53.594, 0)),  # 8
    Part.ArcOfCircle(Part.Circle(V(-368.785963, -127, 0), V(0, 0, 1), 73.406), math.radians(24.227745), math.radians(90)),  # 9
    Part.LineSegment(V(-301.845453, -96.87677, 0), V(-143.069766, -449.711631, 0)),  # 10
    Part.ArcOfCircle(Part.Circle(V(-131.488363, -444.5, 0), V(0, 0, 1), 12.7), math.radians(-155.772255), math.radians(-90)),  # 11
], False)
sketch9.addConstraint([
    Sketcher.Constraint("Coincident", 0, 2, 1, 1),
    Sketcher.Constraint("Coincident", 1, 2, 2, 1),
    Sketcher.Constraint("Tangent", 2, 2, 3, 2),
    Sketcher.Constraint("Tangent", 3, 1, 4, 1),
    Sketcher.Constraint("Tangent", 4, 2, 5, 1),
    Sketcher.Constraint("Tangent", 5, 2, 6, 1),
    Sketcher.Constraint("Coincident", 6, 2, 7, 1),
    Sketcher.Constraint("Coincident", 7, 2, 8, 1),
    Sketcher.Constraint("Tangent", 8, 2, 9, 2),
    Sketcher.Constraint("Tangent", 9, 1, 10, 1),
    Sketcher.Constraint("Tangent", 10, 2, 11, 1),
    Sketcher.Constraint("Tangent", 11, 2, 0, 1),
    Sketcher.Constraint("Horizontal", 0),
    Sketcher.Constraint("Horizontal", 2),
    Sketcher.Constraint("Horizontal", 6),
    Sketcher.Constraint("Vertical", 7),
    Sketcher.Constraint("Horizontal", 8),
    Sketcher.Constraint("Coincident", 9, 3, 5, 3),
    Sketcher.Constraint("Coincident", 11, 3, 3, 3),
    Sketcher.Constraint("Parallel", 1, 4),
    Sketcher.Constraint("Parallel", 4, 10),
    Sketcher.Constraint("Radius", 5, Q("3 in")),
    Sketcher.Constraint("Radius", 11, Q("0.5 in")),
    Sketcher.Constraint("Radius", 3, Q("0.39 in")),
    Sketcher.Constraint("DistanceY", 5, 3, -1, 1, Q("5 in")),
    Sketcher.Constraint("DistanceY", 0, 2, -1, 1, Q("18 in")),
    Sketcher.Constraint("DistanceX", 6, 2, -1, 1, Q("16.5 in")),
    Sketcher.Constraint("DistanceX", 1, 2, 0, 2, Q("0.0495 in")),
    Sketcher.Constraint("DistanceX", 0, 1, 0, 2, Q("44.431052 mm")),
    Sketcher.Constraint("DistanceX", 6, 2, 6, 1, Q("50.314037 mm")),
])
pad8 = doc.addObject("PartDesign::Pad", "Pad007")
body.addObject(pad8)
pad8.Profile = sketch9
pad8.Length = Q("2.78 in")

# Sketch on XY plane
sketch10 = doc.addObject("Sketcher::SketchObject", "Sketch009")
body.addObject(sketch10)
sketch10.AttachmentSupport = (doc.XY_Plane, [""])
sketch10.MapMode = "FlatFace"
sketch10.AttachmentOffset = App.Placement(V(0, 0, -2.11 * 25.4), App.Rotation())
sketch10.addGeometry([
    Part.ArcOfCircle(Part.Circle(V(-939.8, 101.6, 0), V(0, 0, 1), 98.806), math.radians(180), math.radians(258.475242)),  # 0
    Part.LineSegment(V(-1038.606, 101.6, 0), V(-1038.606, 175.006, 0)),  # 1
    Part.LineSegment(V(-1038.606, 175.006, 0), V(-990.6, 175.006, 0)),  # 2
    Part.LineSegment(V(-990.6, 175.006, 0), V(-990.6, 101.6, 0)),  # 3
    Part.ArcOfCircle(Part.Circle(V(-939.8, 101.6, 0), V(0, 0, 1), 50.8), math.radians(180), math.radians(260.060519)),  # 4
    Part.LineSegment(V(-948.56848, 51.562477, 0), V(-457.2, -34.544, 0)),  # 5
    Part.LineSegment(V(-457.2, -34.544, 0), V(-419.1, -34.544, 0)),  # 6
    Part.LineSegment(V(-419.1, -34.544, 0), V(-419.1, -105.156, 0)),  # 7
    Part.LineSegment(V(-419.1, -105.156, 0), V(-457.2, -105.156, 0)),  # 8
    Part.LineSegment(V(-457.2, -105.156, 0), V(-457.2, -105.0798, 0)),  # 9
    Part.LineSegment(V(-457.2, -105.0798, 0), V(-959.540585, 4.786081, 0)),  # 10
], False)
sketch10.addConstraint([
    Sketcher.Constraint("Tangent", 0, 1, 1, 1),
    Sketcher.Constraint("Coincident", 1, 2, 2, 1),
    Sketcher.Constraint("Coincident", 2, 2, 3, 1),
    Sketcher.Constraint("Tangent", 3, 2, 4, 1),
    Sketcher.Constraint("Tangent", 4, 2, 5, 1),
    Sketcher.Constraint("Coincident", 5, 2, 6, 1),
    Sketcher.Constraint("Coincident", 6, 2, 7, 1),
    Sketcher.Constraint("Coincident", 7, 2, 8, 1),
    Sketcher.Constraint("Coincident", 8, 2, 9, 1),
    Sketcher.Constraint("Coincident", 9, 2, 10, 1),
    Sketcher.Constraint("Coincident", 10, 2, 0, 2),
    Sketcher.Constraint("Vertical", 1),
    Sketcher.Constraint("Horizontal", 2),
    Sketcher.Constraint("Vertical", 3),
    Sketcher.Constraint("Horizontal", 6),
    Sketcher.Constraint("Vertical", 7),
    Sketcher.Constraint("Horizontal", 8),
    Sketcher.Constraint("Vertical", 9),
    Sketcher.Constraint("Coincident", 4, 3, 0, 3),
    Sketcher.Constraint("Vertical", 5, 2, 8, 2),
    Sketcher.Constraint("Radius", 4, Q("2 in")),
    Sketcher.Constraint("Radius", 0, Q("3.89 in")),
    Sketcher.Constraint("DistanceX", 6, 1, 6, 2, Q("1.5 in")),
    Sketcher.Constraint("DistanceX", 0, 3, -1, 1, Q("37 in")),
    Sketcher.Constraint("DistanceY", -1, 1, 0, 3, Q("4 in")),
    Sketcher.Constraint("DistanceX", 5, 2, -1, 1, Q("18 in")),
    Sketcher.Constraint("DistanceY", 1, 1, 1, 2, Q("2.89 in")),
    Sketcher.Constraint("DistanceY", 7, 2, 7, 1, Q("2.78 in")),
    Sketcher.Constraint("Distance", 5, Q("19.64 in")),
    Sketcher.Constraint("DistanceY", 9, 1, 9, 2, Q("0.003 in")),
    Sketcher.Constraint("DistanceY", -1, 1, 10, 2, Q("4.786081 mm")),
])
pad9 = doc.addObject("PartDesign::Pad", "Pad008")
body.addObject(pad9)
pad9.Profile = sketch10
pad9.Length = Q("0.11 in")

# Sketch on YZ plane
sketch11 = doc.addObject("Sketcher::SketchObject", "Sketch010")
body.addObject(sketch11)
sketch11.AttachmentSupport = (doc.YZ_Plane, [""])
sketch11.MapMode = "FlatFace"
sketch11.addGeometry([
    Part.LineSegment(V(0, -2.794, 0), V(-31.75, -2.794, 0)),  # 0
    Part.LineSegment(V(-31.75, -2.794, 0), V(-31.75, -457.2, 0)),  # 1
    Part.LineSegment(V(-31.75, -457.2, 0), V(-12.7, -457.2, 0)),  # 2
    Part.ArcOfCircle(Part.Circle(V(-12.7, -444.5, 0), V(0, 0, 1), 12.7), math.radians(-90), math.radians(0)),  # 3
    Part.LineSegment(V(0, -444.5, 0), V(0, -2.794, 0)),  # 4
    Part.LineSegment(V(-11.43, -365.125, 0), V(-11.43, -381, 0)),  # 5
    Part.ArcOfCircle(Part.Circle(V(-17.78, -381, 0), V(0, 0, 1), 6.35), math.radians(180), math.radians(360)),  # 6
    Part.LineSegment(V(-24.13, -381, 0), V(-24.13, -365.125, 0)),  # 7
    Part.ArcOfCircle(Part.Circle(V(-17.78, -365.125, 0), V(0, 0, 1), 6.35), math.radians(0), math.radians(180)),  # 8
    Part.LineSegment(V(-24.13, -281.305, 0), V(-24.13, -265.43, 0)),  # 9
    Part.ArcOfCircle(Part.Circle(V(-17.78, -265.43, 0), V(0, 0, 1), 6.35), math.radians(0), math.radians(180)),  # 10
    Part.LineSegment(V(-11.43, -265.43, 0), V(-11.43, -281.305, 0)),  # 11
    Part.ArcOfCircle(Part.Circle(V(-17.78, -281.305, 0), V(0, 0, 1), 6.35), math.radians(180), math.radians(360)),  # 12
    Part.LineSegment(V(-24.13, -167.9575, 0), V(-24.13, -152.0825, 0)),  # 13
    Part.ArcOfCircle(Part.Circle(V(-17.78, -152.0825, 0), V(0, 0, 1), 6.35), math.radians(0), math.radians(180)),  # 14
    Part.LineSegment(V(-11.43, -152.0825, 0), V(-11.43, -167.9575, 0)),  # 15
    Part.ArcOfCircle(Part.Circle(V(-17.78, -167.9575, 0), V(0, 0, 1), 6.35), math.radians(180), math.radians(360)),  # 16
    Part.LineSegment(V(-24.13, -68.2625, 0), V(-24.13, -52.3875, 0)),  # 17
    Part.ArcOfCircle(Part.Circle(V(-17.78, -52.3875, 0), V(0, 0, 1), 6.35), math.radians(0), math.radians(180)),  # 18
    Part.LineSegment(V(-11.43, -52.3875, 0), V(-11.43, -68.2625, 0)),  # 19
    Part.ArcOfCircle(Part.Circle(V(-17.78, -68.2625, 0), V(0, 0, 1), 6.35), math.radians(180), math.radians(360)),  # 20
], False)
sketch11.addConstraint([
    Sketcher.Constraint("Coincident", 0, 2, 1, 1),
    Sketcher.Constraint("Coincident", 1, 2, 2, 1),
    Sketcher.Constraint("Tangent", 2, 2, 3, 1),
    Sketcher.Constraint("Tangent", 3, 2, 4, 1),
    Sketcher.Constraint("Coincident", 4, 2, 0, 1),
    Sketcher.Constraint("Tangent", 5, 2, 6, 2),
    Sketcher.Constraint("Tangent", 6, 1, 7, 1),
    Sketcher.Constraint("Tangent", 7, 2, 8, 2),
    Sketcher.Constraint("Tangent", 8, 1, 5, 1),
    Sketcher.Constraint("Tangent", 9, 2, 10, 2),
    Sketcher.Constraint("Tangent", 10, 1, 11, 1),
    Sketcher.Constraint("Tangent", 11, 2, 12, 2),
    Sketcher.Constraint("Tangent", 12, 1, 9, 1),
    Sketcher.Constraint("Tangent", 13, 2, 14, 2),
    Sketcher.Constraint("Tangent", 14, 1, 15, 1),
    Sketcher.Constraint("Tangent", 15, 2, 16, 2),
    Sketcher.Constraint("Tangent", 16, 1, 13, 1),
    Sketcher.Constraint("Tangent", 17, 2, 18, 2),
    Sketcher.Constraint("Tangent", 18, 1, 19, 1),
    Sketcher.Constraint("Tangent", 19, 2, 20, 2),
    Sketcher.Constraint("Tangent", 20, 1, 17, 1),
    Sketcher.Constraint("Horizontal", 0),
    Sketcher.Constraint("Vertical", 1),
    Sketcher.Constraint("Horizontal", 2),
    Sketcher.Constraint("Vertical", 4),
    Sketcher.Constraint("Vertical", 5),
    Sketcher.Constraint("Vertical", 7),
    Sketcher.Constraint("Vertical", 9),
    Sketcher.Constraint("Vertical", 11),
    Sketcher.Constraint("Vertical", 13),
    Sketcher.Constraint("Vertical", 15),
    Sketcher.Constraint("Vertical", 17),
    Sketcher.Constraint("Vertical", 19),
    Sketcher.Constraint("Equal", 8, 10),
    Sketcher.Constraint("Equal", 12, 14),
    Sketcher.Constraint("Equal", 16, 18),
    Sketcher.Constraint("PointOnObject", 3, 2, -2),
    Sketcher.Constraint("Vertical", 8, 3, 10, 3),
    Sketcher.Constraint("Vertical", 12, 3, 14, 3),
    Sketcher.Constraint("Vertical", 16, 3, 18, 3),
    Sketcher.Constraint("Equal", 7, 9),
    Sketcher.Constraint("Equal", 11, 13),
    Sketcher.Constraint("Equal", 15, 17),
    Sketcher.Constraint("Radius", 3, Q("0.5 in")),
    Sketcher.Constraint("Radius", 6, Q("0.25 in")),
    Sketcher.Constraint("DistanceY", 6, 3, -1, 1, Q("15 in")),
    Sketcher.Constraint("DistanceY", 1, 2, -1, 1, Q("18 in")),
    Sketcher.Constraint("DistanceX", 0, 2, 0, 1, Q("1.25 in")),
    Sketcher.Constraint("DistanceY", 1, 2, 1, 1, Q("17.89 in")),
    Sketcher.Constraint("DistanceX", 6, 3, -1, 1, Q("0.7 in")),
    Sketcher.Constraint("DistanceY", 8, 3, 12, 3, Q("3.3 in")),
    Sketcher.Constraint("DistanceY", 14, 3, 20, 3, Q("3.3 in")),
    Sketcher.Constraint("DistanceY", 5, 2, 5, 1, Q("0.625 in")),
    Sketcher.Constraint("DistanceY", 18, 3, -1, 1, Q("2.0625 in")),
])
pad10 = doc.addObject("PartDesign::Pad", "Pad009")
body.addObject(pad10)
pad10.Profile = sketch11
pad10.Length = Q("0.11 in")
pad10.Reversed = True

# Sketch on XZ plane
sketch12 = doc.addObject("Sketcher::SketchObject", "Sketch011")
body.addObject(sketch12)
sketch12.AttachmentSupport = (doc.XZ_Plane, [""])
sketch12.MapMode = "FlatFace"
sketch12.AttachmentOffset = App.Placement(V(0, 0, 1.25 * 25.4), App.Rotation())
sketch12.addGeometry([
    Part.LineSegment(V(-106.088363, -457.2, 0), V(-131.488363, -457.2, 0)),  # 0
    Part.ArcOfCircle(Part.Circle(V(-131.488363, -444.5, 0), V(0, 0, 1), 12.7), math.radians(-155.772255), math.radians(-90)),  # 1
    Part.LineSegment(V(-143.069766, -449.711631, 0), V(-254.355891, -202.409131, 0)),  # 2
    Part.LineSegment(V(-254.355891, -202.409131, 0), V(-251.807982, -201.262573, 0)),  # 3
    Part.LineSegment(V(-251.807982, -201.262573, 0), V(-140.521857, -448.565072, 0)),  # 4
    Part.ArcOfCircle(Part.Circle(V(-131.488363, -444.5, 0), V(0, 0, 1), 9.906), math.radians(-155.772255), math.radians(-90)),  # 5
    Part.LineSegment(V(-131.488363, -454.406, 0), V(-106.088363, -454.406, 0)),  # 6
    Part.LineSegment(V(-106.088363, -454.406, 0), V(-106.088363, -457.2, 0)),  # 7
], False)
sketch12.addConstraint([
    Sketcher.Constraint("Tangent", 0, 2, 1, 2),
    Sketcher.Constraint("Tangent", 1, 1, 2, 1),
    Sketcher.Constraint("Coincident", 2, 2, 3, 1),
    Sketcher.Constraint("Coincident", 3, 2, 4, 1),
    Sketcher.Constraint("Tangent", 4, 2, 5, 1),
    Sketcher.Constraint("Tangent", 5, 2, 6, 1),
    Sketcher.Constraint("Coincident", 6, 2, 7, 1),
    Sketcher.Constraint("Coincident", 7, 2, 0, 1),
    Sketcher.Constraint("Horizontal", 0),
    Sketcher.Constraint("Horizontal", 6),
    Sketcher.Constraint("Vertical", 7),
    Sketcher.Constraint("Coincident", 5, 3, 1, 3),
    Sketcher.Constraint("Perpendicular", 2, 3),
    Sketcher.Constraint("Perpendicular", 3, 4),
    Sketcher.Constraint("Radius", 1, Q("0.5 in")),
    Sketcher.Constraint("DistanceX", 0, 2, 0, 1, Q("1 in")),
    Sketcher.Constraint("Radius", 5, Q("0.39 in")),
    Sketcher.Constraint("DistanceY", 0, 2, -1, 1, Q("18 in")),
    Sketcher.Constraint("DistanceX", 3, 2, -1, 1, Q("9.9137001 in")),
    Sketcher.Constraint("DistanceY", 1, 1, 2, 2, Q("247.3025 mm")),
    Sketcher.Constraint("DistanceY", 2, 2, -1, 1, Q("202.409131 mm")),
])
pad11 = doc.addObject("PartDesign::Pad", "Pad010")
body.addObject(pad11)
pad11.Profile = sketch12
pad11.Length = Q("9 in")
pad11.Reversed = True

# Sketch on an angled plane
sketch13 = doc.addObject("Sketcher::SketchObject", "Sketch012")
body.addObject(sketch13)
sketch13.Placement = App.Placement(V(-287.268191, 0, -129.270686), App.Rotation(V(0, -1, 0), V(-0.410364677, 0, 0.911921505), V(-0.911921505, 0, -0.410364677), "ZXY"))
sketch13.addGeometry([
    Part.LineSegment(V(-180.975, -105.602567, 0), V(-161.925, -105.602567, 0)),  # 0
    Part.ArcOfCircle(Part.Circle(V(-161.925, -99.252567, 0), V(0, 0, 1), 6.35), math.radians(-90), math.radians(90)),  # 1
    Part.LineSegment(V(-161.925, -92.902567, 0), V(-180.975, -92.902567, 0)),  # 2
    Part.ArcOfCircle(Part.Circle(V(-180.975, -99.252567, 0), V(0, 0, 1), 6.35), math.radians(90), math.radians(270)),  # 3
    Part.LineSegment(V(-161.925, -258.002567, 0), V(-180.975, -258.002567, 0)),  # 4
    Part.ArcOfCircle(Part.Circle(V(-180.975, -264.352567, 0), V(0, 0, 1), 6.35), math.radians(90), math.radians(270)),  # 5
    Part.LineSegment(V(-180.975, -270.702567, 0), V(-161.925, -270.702567, 0)),  # 6
    Part.ArcOfCircle(Part.Circle(V(-161.925, -264.352567, 0), V(0, 0, 1), 6.35), math.radians(-90), math.radians(90)),  # 7
    Part.LineSegment(V(19.05, -92.902567, 0), V(0, -92.902567, 0)),  # 8
    Part.ArcOfCircle(Part.Circle(V(0, -99.252567, 0), V(0, 0, 1), 6.35), math.radians(90), math.radians(270)),  # 9
    Part.LineSegment(V(0, -105.602567, 0), V(19.05, -105.602567, 0)),  # 10
    Part.ArcOfCircle(Part.Circle(V(19.05, -99.252567, 0), V(0, 0, 1), 6.35), math.radians(-90), math.radians(90)),  # 11
    Part.LineSegment(V(15.875, -258.002567, 0), V(0, -258.002567, 0)),  # 12
    Part.ArcOfCircle(Part.Circle(V(0, -264.352567, 0), V(0, 0, 1), 6.35), math.radians(90), math.radians(270)),  # 13
    Part.LineSegment(V(0, -270.702567, 0), V(15.875, -270.702567, 0)),  # 14
    Part.ArcOfCircle(Part.Circle(V(15.875, -264.352567, 0), V(0, 0, 1), 6.35), math.radians(-90), math.radians(90)),  # 15
], False)
sketch13.addConstraint([
    Sketcher.Constraint("Tangent", 0, 2, 1, 1),
    Sketcher.Constraint("Tangent", 1, 2, 2, 1),
    Sketcher.Constraint("Tangent", 2, 2, 3, 1),
    Sketcher.Constraint("Tangent", 3, 2, 0, 1),
    Sketcher.Constraint("Tangent", 4, 2, 5, 1),
    Sketcher.Constraint("Tangent", 5, 2, 6, 1),
    Sketcher.Constraint("Tangent", 6, 2, 7, 1),
    Sketcher.Constraint("Tangent", 7, 2, 4, 1),
    Sketcher.Constraint("Tangent", 8, 2, 9, 1),
    Sketcher.Constraint("Tangent", 9, 2, 10, 1),
    Sketcher.Constraint("Tangent", 10, 2, 11, 1),
    Sketcher.Constraint("Tangent", 11, 2, 8, 1),
    Sketcher.Constraint("Tangent", 12, 2, 13, 1),
    Sketcher.Constraint("Tangent", 13, 2, 14, 1),
    Sketcher.Constraint("Tangent", 14, 2, 15, 1),
    Sketcher.Constraint("Tangent", 15, 2, 12, 1),
    Sketcher.Constraint("Horizontal", 0),
    Sketcher.Constraint("Horizontal", 2),
    Sketcher.Constraint("Horizontal", 4),
    Sketcher.Constraint("Horizontal", 6),
    Sketcher.Constraint("Horizontal", 8),
    Sketcher.Constraint("Horizontal", 10),
    Sketcher.Constraint("Horizontal", 12),
    Sketcher.Constraint("Horizontal", 14),
    Sketcher.Constraint("Equal", 3, 5),
    Sketcher.Constraint("Equal", 7, 9),
    Sketcher.Constraint("Equal", 11, 13),
    Sketcher.Constraint("PointOnObject", 9, 3, -2),
    Sketcher.Constraint("PointOnObject", 13, 3, -2),
    Sketcher.Constraint("Horizontal", 3, 3, 9, 3),
    Sketcher.Constraint("Horizontal", 7, 3, 13, 3),
    Sketcher.Constraint("Vertical", 3, 3, 5, 3),
    Sketcher.Constraint("Vertical", 1, 3, 7, 3),
    Sketcher.Constraint("Equal", 6, 8),
    Sketcher.Constraint("Radius", 1, Q("0.25 in")),
    Sketcher.Constraint("DistanceX", 7, 3, 15, 3, Q("7 in")),
    Sketcher.Constraint("DistanceY", 4, 2, 3, 2, Q("6 in")),
    Sketcher.Constraint("DistanceX", 0, 1, 0, 2, Q("0.75 in")),
    Sketcher.Constraint("DistanceX", 12, 2, 12, 1, Q("0.625 in")),
    Sketcher.Constraint("DistanceY", 1, 3, -1, 1, Q("99.252567 mm")),
])
pocket2 = doc.addObject("PartDesign::Pocket", "Pocket001")
body.addObject(pocket2)
pocket2.Profile = sketch13
pocket2.Length = Q("1 in")
doc.recompute()

fillet2 = doc.addObject("PartDesign::Fillet", "Fillet001")
body.addObject(fillet2)
fillet2.Base = (pocket2, edges_at(pocket2, [(0, -34.544, -228.6)]))
fillet2.Radius = Q("0.1 in")

doc.recompute()
